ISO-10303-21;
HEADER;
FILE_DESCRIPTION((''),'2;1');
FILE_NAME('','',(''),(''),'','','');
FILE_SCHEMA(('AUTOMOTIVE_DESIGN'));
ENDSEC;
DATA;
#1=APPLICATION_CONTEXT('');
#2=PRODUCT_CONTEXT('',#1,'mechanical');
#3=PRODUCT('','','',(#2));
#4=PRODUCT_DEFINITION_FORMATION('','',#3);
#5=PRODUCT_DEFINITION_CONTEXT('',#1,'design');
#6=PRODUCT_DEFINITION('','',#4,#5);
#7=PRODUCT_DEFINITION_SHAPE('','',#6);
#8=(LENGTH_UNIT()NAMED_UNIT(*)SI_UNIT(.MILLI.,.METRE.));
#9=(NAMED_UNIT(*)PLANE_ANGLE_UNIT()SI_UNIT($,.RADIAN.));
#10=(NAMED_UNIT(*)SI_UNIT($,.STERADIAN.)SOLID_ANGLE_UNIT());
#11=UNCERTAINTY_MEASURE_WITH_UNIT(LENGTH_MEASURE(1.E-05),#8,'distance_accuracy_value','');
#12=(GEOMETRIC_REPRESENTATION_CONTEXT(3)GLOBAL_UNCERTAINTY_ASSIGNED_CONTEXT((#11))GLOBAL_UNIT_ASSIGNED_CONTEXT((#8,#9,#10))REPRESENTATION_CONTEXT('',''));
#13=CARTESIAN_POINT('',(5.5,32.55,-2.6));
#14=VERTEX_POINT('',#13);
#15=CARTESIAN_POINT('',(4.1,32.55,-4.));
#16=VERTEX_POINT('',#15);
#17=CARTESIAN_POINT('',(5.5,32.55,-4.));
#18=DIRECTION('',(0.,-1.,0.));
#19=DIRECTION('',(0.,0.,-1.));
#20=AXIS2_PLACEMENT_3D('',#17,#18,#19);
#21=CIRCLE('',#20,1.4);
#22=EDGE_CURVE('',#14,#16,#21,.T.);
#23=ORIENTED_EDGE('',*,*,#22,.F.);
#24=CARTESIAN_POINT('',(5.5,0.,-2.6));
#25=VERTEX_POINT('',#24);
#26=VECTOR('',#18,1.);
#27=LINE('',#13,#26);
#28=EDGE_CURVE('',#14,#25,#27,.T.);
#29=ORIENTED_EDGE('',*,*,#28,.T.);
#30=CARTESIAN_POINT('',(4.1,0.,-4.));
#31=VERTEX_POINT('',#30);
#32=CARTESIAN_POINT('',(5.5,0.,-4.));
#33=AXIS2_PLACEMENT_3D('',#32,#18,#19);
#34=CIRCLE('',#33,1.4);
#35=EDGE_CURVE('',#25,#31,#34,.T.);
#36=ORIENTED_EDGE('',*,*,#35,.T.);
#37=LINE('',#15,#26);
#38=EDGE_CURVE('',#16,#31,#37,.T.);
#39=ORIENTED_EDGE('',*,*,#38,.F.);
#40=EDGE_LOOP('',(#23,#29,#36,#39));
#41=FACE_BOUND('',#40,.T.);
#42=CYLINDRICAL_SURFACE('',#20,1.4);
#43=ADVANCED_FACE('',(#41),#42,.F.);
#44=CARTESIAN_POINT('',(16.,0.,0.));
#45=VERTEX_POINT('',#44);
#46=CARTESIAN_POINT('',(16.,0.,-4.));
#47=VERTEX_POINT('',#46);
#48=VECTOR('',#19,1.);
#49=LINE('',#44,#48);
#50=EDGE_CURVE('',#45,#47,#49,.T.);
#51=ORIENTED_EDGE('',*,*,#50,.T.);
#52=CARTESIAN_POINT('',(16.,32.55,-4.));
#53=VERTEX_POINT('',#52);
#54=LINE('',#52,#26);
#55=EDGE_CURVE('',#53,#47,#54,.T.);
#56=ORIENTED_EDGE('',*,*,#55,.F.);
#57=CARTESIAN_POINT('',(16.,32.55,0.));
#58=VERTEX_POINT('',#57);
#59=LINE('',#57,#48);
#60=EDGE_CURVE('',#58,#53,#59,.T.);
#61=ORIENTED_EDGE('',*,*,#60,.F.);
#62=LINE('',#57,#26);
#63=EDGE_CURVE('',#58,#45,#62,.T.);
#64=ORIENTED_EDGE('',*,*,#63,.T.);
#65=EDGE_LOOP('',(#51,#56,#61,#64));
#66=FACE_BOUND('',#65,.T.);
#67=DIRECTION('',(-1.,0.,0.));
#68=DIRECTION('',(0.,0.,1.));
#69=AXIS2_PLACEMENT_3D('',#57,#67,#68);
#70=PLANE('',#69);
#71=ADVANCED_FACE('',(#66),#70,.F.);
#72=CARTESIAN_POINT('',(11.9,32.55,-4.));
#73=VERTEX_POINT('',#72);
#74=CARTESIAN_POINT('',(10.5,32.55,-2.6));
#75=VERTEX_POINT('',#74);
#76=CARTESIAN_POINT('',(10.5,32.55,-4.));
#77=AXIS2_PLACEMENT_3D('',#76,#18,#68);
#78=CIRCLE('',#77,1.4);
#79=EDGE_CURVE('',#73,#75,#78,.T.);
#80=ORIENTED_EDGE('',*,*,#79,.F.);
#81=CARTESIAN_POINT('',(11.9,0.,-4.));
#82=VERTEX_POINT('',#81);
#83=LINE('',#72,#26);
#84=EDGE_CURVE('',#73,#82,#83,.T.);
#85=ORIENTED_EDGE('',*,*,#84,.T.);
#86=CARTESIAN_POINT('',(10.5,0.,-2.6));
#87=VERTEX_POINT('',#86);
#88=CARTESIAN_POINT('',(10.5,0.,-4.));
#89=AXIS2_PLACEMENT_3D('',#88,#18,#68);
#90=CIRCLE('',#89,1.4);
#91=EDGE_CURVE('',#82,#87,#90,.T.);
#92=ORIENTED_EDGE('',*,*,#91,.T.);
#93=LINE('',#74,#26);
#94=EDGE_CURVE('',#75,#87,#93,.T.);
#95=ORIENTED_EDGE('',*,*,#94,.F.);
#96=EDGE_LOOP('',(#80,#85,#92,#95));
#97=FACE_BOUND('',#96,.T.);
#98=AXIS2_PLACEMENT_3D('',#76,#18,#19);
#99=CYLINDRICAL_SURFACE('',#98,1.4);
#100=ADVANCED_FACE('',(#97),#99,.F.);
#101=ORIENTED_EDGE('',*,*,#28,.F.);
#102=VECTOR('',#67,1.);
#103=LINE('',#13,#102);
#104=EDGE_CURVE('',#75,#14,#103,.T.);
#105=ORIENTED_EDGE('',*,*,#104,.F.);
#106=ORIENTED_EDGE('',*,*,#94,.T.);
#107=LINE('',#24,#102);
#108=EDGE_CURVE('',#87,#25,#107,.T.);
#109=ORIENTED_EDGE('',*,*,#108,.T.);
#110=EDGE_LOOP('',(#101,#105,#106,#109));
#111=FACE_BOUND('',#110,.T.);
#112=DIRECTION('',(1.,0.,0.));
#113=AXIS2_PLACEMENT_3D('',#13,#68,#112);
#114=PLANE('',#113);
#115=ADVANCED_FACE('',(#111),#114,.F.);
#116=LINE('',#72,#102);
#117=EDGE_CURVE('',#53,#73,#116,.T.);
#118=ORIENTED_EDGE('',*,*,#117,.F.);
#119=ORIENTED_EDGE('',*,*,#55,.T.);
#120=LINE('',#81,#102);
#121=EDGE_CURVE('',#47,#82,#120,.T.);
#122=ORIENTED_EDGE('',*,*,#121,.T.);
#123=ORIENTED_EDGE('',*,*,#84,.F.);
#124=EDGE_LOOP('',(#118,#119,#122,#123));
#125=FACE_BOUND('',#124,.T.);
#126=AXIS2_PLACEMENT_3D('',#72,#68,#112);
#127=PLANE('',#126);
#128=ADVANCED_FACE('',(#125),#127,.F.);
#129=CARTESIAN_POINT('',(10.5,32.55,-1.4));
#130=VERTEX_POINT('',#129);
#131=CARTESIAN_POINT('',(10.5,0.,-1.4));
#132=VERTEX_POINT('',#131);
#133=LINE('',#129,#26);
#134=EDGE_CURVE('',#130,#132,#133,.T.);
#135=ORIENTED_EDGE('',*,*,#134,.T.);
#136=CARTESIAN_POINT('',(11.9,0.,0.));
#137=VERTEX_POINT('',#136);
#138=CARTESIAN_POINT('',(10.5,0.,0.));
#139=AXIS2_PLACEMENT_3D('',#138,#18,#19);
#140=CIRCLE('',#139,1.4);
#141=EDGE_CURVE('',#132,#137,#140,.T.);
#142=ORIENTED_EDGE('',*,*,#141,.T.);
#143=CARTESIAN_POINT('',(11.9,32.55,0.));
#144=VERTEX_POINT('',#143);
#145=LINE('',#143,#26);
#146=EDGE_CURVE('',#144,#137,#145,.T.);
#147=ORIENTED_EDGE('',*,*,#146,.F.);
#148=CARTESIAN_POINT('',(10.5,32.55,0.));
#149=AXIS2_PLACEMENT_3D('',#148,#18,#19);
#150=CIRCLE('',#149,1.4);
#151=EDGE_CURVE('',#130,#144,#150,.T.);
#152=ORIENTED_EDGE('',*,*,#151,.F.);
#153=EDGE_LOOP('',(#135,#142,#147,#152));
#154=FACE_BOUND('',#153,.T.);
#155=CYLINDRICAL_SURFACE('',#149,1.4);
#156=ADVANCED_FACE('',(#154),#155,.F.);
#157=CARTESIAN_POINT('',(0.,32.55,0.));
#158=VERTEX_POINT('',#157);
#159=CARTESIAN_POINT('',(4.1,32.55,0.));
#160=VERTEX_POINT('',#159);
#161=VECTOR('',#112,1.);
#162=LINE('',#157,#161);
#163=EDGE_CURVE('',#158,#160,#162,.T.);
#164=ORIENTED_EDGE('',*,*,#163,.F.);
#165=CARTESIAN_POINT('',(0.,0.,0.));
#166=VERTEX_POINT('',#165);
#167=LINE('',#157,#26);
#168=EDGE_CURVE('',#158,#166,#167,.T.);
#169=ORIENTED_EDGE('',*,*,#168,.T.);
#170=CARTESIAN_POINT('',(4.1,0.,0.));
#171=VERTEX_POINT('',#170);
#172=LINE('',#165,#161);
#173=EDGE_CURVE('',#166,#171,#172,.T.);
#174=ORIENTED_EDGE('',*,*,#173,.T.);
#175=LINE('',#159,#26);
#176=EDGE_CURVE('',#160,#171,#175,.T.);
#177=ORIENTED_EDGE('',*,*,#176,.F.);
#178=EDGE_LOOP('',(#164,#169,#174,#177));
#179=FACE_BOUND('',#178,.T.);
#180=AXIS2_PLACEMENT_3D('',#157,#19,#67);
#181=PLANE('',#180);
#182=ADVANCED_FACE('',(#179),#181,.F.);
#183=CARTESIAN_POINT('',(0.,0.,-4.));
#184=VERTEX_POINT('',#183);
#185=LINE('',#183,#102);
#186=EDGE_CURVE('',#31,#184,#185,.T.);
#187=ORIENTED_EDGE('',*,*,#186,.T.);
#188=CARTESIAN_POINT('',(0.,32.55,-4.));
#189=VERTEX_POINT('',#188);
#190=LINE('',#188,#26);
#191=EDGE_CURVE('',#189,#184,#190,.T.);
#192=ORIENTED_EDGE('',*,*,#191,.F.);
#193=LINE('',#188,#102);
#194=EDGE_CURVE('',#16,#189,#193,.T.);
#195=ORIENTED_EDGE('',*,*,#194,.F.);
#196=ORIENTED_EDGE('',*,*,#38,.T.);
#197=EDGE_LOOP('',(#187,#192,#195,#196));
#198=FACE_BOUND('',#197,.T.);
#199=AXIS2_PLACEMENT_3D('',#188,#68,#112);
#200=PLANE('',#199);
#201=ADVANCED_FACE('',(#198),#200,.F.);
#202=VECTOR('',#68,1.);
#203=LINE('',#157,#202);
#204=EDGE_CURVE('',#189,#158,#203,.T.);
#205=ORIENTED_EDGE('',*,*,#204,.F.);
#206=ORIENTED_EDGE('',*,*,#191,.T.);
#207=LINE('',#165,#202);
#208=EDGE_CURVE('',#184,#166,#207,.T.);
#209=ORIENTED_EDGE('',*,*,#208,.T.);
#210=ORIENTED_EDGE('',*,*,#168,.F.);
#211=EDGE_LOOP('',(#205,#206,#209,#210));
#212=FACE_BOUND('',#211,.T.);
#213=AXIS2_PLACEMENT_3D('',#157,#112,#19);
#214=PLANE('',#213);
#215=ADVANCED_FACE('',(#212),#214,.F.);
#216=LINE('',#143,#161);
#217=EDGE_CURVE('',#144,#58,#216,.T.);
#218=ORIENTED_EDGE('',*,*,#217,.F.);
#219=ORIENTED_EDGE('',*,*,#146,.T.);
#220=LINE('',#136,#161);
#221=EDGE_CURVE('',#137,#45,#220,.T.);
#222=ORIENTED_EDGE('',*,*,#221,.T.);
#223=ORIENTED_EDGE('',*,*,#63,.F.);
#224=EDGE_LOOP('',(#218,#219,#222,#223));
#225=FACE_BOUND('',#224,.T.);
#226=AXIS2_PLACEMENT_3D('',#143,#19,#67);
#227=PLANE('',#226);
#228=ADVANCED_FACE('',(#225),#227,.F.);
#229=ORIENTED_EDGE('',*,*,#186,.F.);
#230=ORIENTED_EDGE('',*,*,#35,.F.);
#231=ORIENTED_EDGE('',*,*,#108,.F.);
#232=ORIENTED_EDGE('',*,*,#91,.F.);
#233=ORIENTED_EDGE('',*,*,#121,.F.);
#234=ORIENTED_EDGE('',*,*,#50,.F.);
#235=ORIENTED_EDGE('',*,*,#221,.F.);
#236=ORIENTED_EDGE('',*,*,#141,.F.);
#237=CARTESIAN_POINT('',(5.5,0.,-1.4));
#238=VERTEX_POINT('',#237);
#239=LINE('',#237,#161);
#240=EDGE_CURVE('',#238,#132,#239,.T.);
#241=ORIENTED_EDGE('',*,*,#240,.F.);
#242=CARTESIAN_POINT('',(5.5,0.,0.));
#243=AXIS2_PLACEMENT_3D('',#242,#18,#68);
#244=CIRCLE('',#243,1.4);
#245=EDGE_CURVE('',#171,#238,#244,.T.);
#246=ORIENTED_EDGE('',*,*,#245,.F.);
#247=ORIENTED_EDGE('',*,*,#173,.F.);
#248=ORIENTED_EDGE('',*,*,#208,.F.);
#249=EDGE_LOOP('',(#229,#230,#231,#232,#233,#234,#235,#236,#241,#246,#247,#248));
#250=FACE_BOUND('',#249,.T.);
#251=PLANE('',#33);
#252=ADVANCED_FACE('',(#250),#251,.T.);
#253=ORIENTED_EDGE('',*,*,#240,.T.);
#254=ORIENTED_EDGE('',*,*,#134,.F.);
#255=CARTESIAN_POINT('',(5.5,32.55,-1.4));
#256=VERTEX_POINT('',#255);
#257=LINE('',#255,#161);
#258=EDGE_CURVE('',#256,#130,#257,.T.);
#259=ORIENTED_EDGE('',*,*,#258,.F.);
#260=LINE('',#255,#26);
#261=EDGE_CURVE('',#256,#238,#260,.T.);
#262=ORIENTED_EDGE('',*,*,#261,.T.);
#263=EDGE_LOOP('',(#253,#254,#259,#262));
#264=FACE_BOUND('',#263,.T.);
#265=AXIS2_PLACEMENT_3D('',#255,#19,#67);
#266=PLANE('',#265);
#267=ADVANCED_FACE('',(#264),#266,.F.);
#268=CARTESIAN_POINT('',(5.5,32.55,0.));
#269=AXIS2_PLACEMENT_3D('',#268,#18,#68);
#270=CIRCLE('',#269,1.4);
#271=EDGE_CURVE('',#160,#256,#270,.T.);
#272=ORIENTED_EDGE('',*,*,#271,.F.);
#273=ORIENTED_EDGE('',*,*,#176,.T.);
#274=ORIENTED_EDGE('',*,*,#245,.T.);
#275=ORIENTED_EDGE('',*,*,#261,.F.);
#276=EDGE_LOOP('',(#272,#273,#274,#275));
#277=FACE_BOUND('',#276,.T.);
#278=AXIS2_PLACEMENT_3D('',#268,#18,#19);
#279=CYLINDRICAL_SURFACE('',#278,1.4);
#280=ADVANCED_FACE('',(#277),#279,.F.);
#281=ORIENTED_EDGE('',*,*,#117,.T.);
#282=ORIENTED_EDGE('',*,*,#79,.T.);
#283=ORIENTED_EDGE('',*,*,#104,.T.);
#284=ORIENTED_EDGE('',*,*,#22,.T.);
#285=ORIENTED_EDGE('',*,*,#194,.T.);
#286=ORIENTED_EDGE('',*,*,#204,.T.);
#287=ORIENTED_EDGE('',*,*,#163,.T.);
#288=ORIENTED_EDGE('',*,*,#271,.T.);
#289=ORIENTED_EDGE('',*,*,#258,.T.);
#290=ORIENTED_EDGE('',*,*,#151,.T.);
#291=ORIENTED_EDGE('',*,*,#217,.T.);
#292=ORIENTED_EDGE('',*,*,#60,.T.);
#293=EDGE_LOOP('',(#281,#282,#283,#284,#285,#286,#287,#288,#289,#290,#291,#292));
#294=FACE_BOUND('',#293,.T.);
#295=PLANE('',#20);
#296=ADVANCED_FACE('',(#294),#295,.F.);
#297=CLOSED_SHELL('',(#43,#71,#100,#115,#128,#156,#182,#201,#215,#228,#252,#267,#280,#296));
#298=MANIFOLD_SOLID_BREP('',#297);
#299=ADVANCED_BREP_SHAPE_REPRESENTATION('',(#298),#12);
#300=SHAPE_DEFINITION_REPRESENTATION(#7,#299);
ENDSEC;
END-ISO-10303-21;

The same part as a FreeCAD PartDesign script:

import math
import FreeCAD as App
import Part
import Sketcher
Q = App.Units.Quantity

doc = App.newDocument("Part")
body = doc.addObject("PartDesign::Body", "Body")

# Sketch on XZ plane
sketch1 = doc.addObject("Sketcher::SketchObject", "Sketch")
body.addObject(sketch1)
sketch1.AttachmentSupport = (doc.XZ_Plane, [""])
sketch1.MapMode = "FlatFace"
sketch1.addGeometry([
    Part.LineSegment(App.Vector(0, 0, 0), App.Vector(4.1, 0, 0)),  # 0
    Part.ArcOfCircle(Part.Circle(App.Vector(5.5, 0, 0), App.Vector(0, 0, 1), 1.4), math.radians(180), math.radians(270)),  # 1
    Part.LineSegment(App.Vector(5.5, -1.4, 0), App.Vector(10.5, -1.4, 0)),  # 2
    Part.ArcOfCircle(Part.Circle(App.Vector(10.5, 0, 0), App.Vector(0, 0, 1), 1.4), math.radians(-90), math.radians(0)),  # 3
    Part.LineSegment(App.Vector(11.9, 0, 0), App.Vector(16, 0, 0)),  # 4
    Part.LineSegment(App.Vector(16, 0, 0), App.Vector(16, -4, 0)),  # 5
    Part.LineSegment(App.Vector(16, -4, 0), App.Vector(11.9, -4, 0)),  # 6
    Part.ArcOfCircle(Part.Circle(App.Vector(10.5, -4, 0), App.Vector(0, 0, 1), 1.4), math.radians(0), math.radians(90)),  # 7
    Part.LineSegment(App.Vector(10.5, -2.6, 0), App.Vector(5.5, -2.6, 0)),  # 8
    Part.ArcOfCircle(Part.Circle(App.Vector(5.5, -4, 0), App.Vector(0, 0, 1), 1.4), math.radians(90), math.radians(180)),  # 9
    Part.LineSegment(App.Vector(4.1, -4, 0), App.Vector(0, -4, 0)),  # 10
    Part.LineSegment(App.Vector(0, -4, 0), App.Vector(0, 0, 0)),  # 11
], False)
sketch1.addConstraint([
    Sketcher.Constraint("Coincident", 0, 2, 1, 1),
    Sketcher.Constraint("Tangent", 1, 2, 2, 1),
    Sketcher.Constraint("Tangent", 2, 2, 3, 1),
    Sketcher.Constraint("Coincident", 3, 2, 4, 1),
    Sketcher.Constraint("Coincident", 4, 2, 5, 1),
    Sketcher.Constraint("Coincident", 5, 2, 6, 1),
    Sketcher.Constraint("Coincident", 6, 2, 7, 1),
    Sketcher.Constraint("Tangent", 7, 2, 8, 1),
    Sketcher.Constraint("Tangent", 8, 2, 9, 1),
    Sketcher.Constraint("Coincident", 9, 2, 10, 1),
    Sketcher.Constraint("Coincident", 10, 2, 11, 1),
    Sketcher.Constraint("Coincident", 11, 2, 0, 1),
    Sketcher.Constraint("Horizontal", 0),
    Sketcher.Constraint("Horizontal", 2),
    Sketcher.Constraint("Horizontal", 4),
    Sketcher.Constraint("Vertical", 5),
    Sketcher.Constraint("Horizontal", 6),
    Sketcher.Constraint("Horizontal", 8),
    Sketcher.Constraint("Horizontal", 10),
    Sketcher.Constraint("Vertical", 11),
    Sketcher.Constraint("Coincident", 11, 2, -1, 1),
    Sketcher.Constraint("Equal", 1, 3),
    Sketcher.Constraint("Equal", 3, 7),
    Sketcher.Constraint("Equal", 7, 9),
    Sketcher.Constraint("PointOnObject", 1, 3, -1),
    Sketcher.Constraint("PointOnObject", 3, 2, -1),
    Sketcher.Constraint("Horizontal", 9, 3, 5, 2),
    Sketcher.Constraint("Horizontal", 6, 2, 9, 2),
    Sketcher.Constraint("Vertical", 3, 3, 7, 3),
    Sketcher.Constraint("Vertical", 1, 3, 9, 3),
    Sketcher.Constraint("Equal", 0, 4),
    Sketcher.Constraint("Radius", 1, Q("1.4 mm")),
    Sketcher.Constraint("DistanceX", 2, 1, 2, 2, Q("5 mm")),
    Sketcher.Constraint("DistanceY", 5, 2, 5, 1, Q("4 mm")),
    Sketcher.Constraint("DistanceX", 0, 1, 0, 2, Q("4.1 mm")),
])
pad1 = doc.addObject("PartDesign::Pad", "Pad")
body.addObject(pad1)
pad1.Profile = sketch1
pad1.Length = 32.55
pad1.Reversed = True

doc.recompute()
